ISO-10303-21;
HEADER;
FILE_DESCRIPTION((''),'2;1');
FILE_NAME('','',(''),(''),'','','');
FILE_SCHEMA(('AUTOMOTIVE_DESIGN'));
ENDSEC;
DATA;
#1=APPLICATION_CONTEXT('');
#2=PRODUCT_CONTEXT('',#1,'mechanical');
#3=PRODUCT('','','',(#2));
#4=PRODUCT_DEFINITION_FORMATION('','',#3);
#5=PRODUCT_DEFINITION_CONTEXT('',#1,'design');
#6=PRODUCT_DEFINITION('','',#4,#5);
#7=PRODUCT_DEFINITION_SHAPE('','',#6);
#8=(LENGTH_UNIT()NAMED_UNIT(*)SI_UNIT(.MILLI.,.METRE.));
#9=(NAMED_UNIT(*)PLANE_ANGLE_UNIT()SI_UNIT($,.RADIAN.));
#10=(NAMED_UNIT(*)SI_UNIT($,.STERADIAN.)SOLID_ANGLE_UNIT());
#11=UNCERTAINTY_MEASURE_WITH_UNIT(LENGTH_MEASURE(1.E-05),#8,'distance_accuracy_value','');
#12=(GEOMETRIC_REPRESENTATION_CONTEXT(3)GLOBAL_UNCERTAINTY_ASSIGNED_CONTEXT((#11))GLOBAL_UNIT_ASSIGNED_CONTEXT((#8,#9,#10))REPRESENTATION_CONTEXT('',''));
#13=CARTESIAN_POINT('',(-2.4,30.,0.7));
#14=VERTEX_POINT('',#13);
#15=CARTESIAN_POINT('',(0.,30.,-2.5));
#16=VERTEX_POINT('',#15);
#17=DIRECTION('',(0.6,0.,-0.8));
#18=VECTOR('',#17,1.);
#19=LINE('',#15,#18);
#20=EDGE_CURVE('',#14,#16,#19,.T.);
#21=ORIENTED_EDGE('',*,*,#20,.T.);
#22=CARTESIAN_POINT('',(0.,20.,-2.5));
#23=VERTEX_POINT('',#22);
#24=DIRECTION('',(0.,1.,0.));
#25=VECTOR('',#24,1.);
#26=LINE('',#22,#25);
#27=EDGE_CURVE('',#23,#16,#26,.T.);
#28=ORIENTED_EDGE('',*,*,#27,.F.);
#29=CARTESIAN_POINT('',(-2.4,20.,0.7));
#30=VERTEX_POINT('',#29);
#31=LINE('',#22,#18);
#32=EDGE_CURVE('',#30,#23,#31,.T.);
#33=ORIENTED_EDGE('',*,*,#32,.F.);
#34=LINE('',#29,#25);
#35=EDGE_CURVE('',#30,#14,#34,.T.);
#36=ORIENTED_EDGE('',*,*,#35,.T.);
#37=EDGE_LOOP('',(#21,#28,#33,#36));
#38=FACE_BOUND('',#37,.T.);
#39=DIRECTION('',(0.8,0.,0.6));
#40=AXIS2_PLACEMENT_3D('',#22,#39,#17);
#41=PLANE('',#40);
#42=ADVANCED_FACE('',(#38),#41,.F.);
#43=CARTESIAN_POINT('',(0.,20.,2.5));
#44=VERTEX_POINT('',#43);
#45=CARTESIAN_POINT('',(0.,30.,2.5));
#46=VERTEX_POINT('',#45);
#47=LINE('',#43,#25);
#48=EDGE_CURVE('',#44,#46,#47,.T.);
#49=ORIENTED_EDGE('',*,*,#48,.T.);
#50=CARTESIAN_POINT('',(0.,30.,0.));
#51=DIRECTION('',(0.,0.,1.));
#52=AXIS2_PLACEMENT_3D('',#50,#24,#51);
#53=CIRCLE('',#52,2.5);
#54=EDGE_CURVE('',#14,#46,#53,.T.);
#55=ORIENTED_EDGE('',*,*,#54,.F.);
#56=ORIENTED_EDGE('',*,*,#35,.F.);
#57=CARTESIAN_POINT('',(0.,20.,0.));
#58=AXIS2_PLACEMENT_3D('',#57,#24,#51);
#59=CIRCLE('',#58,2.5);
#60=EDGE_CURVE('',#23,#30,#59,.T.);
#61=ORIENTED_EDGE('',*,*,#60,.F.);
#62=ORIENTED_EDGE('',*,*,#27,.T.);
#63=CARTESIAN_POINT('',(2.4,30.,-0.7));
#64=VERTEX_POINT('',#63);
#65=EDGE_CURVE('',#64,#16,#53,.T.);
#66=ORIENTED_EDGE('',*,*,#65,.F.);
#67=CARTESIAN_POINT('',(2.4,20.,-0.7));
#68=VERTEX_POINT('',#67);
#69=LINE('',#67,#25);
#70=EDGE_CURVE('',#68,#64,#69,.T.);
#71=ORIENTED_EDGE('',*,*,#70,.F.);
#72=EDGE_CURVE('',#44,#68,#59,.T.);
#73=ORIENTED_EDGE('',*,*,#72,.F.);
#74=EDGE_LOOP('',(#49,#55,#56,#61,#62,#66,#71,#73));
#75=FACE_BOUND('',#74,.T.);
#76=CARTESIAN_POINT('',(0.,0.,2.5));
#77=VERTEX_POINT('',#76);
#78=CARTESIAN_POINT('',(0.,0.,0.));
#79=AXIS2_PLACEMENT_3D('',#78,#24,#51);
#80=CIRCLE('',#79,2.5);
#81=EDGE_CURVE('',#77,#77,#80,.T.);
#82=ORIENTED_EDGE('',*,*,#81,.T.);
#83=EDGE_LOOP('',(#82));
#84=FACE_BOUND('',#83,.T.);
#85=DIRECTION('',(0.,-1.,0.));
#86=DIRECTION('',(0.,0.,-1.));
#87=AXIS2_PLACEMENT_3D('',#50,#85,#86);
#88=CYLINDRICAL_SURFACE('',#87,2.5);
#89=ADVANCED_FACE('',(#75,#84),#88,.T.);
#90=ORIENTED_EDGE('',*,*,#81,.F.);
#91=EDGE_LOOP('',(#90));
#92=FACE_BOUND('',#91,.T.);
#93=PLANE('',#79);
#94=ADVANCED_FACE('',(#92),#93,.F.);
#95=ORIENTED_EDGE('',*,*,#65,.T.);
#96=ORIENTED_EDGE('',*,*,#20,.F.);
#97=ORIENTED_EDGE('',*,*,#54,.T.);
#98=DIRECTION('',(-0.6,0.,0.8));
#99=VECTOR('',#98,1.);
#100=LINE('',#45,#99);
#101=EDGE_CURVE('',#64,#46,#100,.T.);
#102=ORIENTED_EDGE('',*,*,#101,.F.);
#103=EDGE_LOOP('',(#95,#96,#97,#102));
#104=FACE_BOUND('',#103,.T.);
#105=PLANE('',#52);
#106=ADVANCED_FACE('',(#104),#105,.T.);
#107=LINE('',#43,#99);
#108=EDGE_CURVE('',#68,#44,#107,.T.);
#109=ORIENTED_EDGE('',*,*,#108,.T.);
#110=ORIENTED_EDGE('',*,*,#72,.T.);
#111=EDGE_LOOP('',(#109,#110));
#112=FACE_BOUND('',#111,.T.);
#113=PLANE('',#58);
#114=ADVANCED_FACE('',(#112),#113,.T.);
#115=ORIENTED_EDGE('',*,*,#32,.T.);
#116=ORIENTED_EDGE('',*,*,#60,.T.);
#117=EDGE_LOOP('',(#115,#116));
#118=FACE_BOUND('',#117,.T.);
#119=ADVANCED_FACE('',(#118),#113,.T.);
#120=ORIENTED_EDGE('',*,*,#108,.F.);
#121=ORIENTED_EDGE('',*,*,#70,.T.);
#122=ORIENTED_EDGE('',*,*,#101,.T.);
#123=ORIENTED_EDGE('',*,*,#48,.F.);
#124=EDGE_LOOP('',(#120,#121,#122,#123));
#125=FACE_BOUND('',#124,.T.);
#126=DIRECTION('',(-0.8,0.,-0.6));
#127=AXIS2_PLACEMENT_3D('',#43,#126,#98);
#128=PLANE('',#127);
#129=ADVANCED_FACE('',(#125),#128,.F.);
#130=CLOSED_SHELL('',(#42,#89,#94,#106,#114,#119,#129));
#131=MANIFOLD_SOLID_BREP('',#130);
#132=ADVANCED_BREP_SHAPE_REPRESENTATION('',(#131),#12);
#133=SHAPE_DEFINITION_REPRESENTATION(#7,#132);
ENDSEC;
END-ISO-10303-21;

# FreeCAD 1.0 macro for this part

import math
import FreeCAD as App
import Part
import Sketcher
from FreeCAD import Vector

doc = App.newDocument("Part")
body = doc.addObject("PartDesign::Body", "Body")

# Sketch on XZ plane
sketch1 = body.newObject("Sketcher::SketchObject", "Sketch")
sketch1.AttachmentSupport = (doc.getObject("XZ_Plane"), [""])
sketch1.MapMode = "FlatFace"
sketch1.addGeometry(Part.Circle(Vector(0, 0, 0), Vector(0, 0, 1), 2.5), False)
sketch1.addConstraint([
    Sketcher.Constraint("Coincident", 0, 3, -1, 1),
    Sketcher.Constraint("Diameter", 0, 5.0),
])
pad1 = body.newObject("PartDesign::Pad", "Pad")
pad1.Profile = sketch1
pad1.Length = 30
pad1.Reversed = True

# Sketch on XZ plane
sketch2 = body.newObject("Sketcher::SketchObject", "Sketch001")
sketch2.AttachmentSupport = (doc.getObject("XZ_Plane"), [""])
sketch2.MapMode = "FlatFace"
sketch2.AttachmentOffset = App.Placement(Vector(0, 0, -20), App.Rotation())
sketch2.addGeometry([
    Part.LineSegment(Vector(-2.4, 0.7, 0), Vector(0, -2.5, 0)),
    Part.ArcOfCircle(Part.Circle(Vector(0, 0, 0), Vector(0, 0, 1), 2.5), math.radians(164), math.radians(270)),
    Part.LineSegment(Vector(2.4, -0.7, 0), Vector(0, 2.5, 0)),
    Part.ArcOfCircle(Part.Circle(Vector(0, 0, 0), Vector(0, 0, 1), 2.5), math.radians(-16), math.radians(90)),
], False)
sketch2.addConstraint([
    Sketcher.Constraint("Coincident", 0, 1, 1, 1),
    Sketcher.Constraint("Coincident", 1, 2, 0, 2),
    Sketcher.Constraint("Coincident", 2, 1, 3, 1),
    Sketcher.Constraint("Coincident", 3, 2, 2, 2),
    Sketcher.Constraint("Coincident", 1, 3, -1, 1),
    Sketcher.Constraint("Coincident", 3, 3, -1, 1),
    Sketcher.Constraint("Equal", 1, 3),
    Sketcher.Constraint("PointOnObject", 1, 2, -2),
    Sketcher.Constraint("PointOnObject", 3, 2, -2),
    Sketcher.Constraint("Parallel", 0, 2),
    Sketcher.Constraint("Radius", 1, 2.5),
    Sketcher.Constraint("Distance", 0, 4.0),
])
pocket1 = body.newObject("PartDesign::Pocket", "Pocket")
pocket1.Profile = sketch2
pocket1.Length = 10

doc.recompute()
